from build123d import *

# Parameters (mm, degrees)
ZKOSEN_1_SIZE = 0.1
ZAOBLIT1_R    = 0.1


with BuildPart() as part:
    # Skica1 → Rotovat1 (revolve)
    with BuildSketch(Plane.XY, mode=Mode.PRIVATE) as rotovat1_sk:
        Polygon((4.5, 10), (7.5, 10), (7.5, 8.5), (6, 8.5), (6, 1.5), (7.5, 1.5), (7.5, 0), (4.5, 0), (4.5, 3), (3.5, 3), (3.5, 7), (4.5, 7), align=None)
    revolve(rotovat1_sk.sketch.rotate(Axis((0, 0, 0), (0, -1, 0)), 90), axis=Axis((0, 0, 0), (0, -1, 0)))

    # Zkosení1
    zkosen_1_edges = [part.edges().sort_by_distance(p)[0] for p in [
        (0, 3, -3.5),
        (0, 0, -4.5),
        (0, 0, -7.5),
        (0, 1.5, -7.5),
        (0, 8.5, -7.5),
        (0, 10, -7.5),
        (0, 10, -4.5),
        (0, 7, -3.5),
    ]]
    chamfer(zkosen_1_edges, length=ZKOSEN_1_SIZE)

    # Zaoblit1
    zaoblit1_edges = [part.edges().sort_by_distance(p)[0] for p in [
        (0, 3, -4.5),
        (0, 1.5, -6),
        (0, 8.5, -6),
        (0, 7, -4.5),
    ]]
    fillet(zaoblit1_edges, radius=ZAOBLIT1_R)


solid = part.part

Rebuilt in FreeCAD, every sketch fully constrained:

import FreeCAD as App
import Part
import Sketcher
Q = App.Units.Quantity


def edges_at(feature, points):
    """Names of the edges that pass closest to the given points."""
    edges = feature.Shape.Edges
    near = lambda p: min(range(len(edges)), key=lambda i: edges[i].distToShape(Part.Vertex(*p))[0])
    return sorted({f"Edge{near(p) + 1}" for p in points})

doc = App.newDocument("Part")
body = doc.addObject("PartDesign::Body", "Body")

sketch1 = doc.addObject("Sketcher::SketchObject", "Sketch")
body.addObject(sketch1)
sketch1.AttachmentSupport = (doc.XY_Plane, [""])
sketch1.MapMode = "FlatFace"
sketch1.addGeometry(Part.LineSegment(App.Vector(7.5, 10, 0), App.Vector(4.5, 10, 0)), False)
sketch1.addGeometry(Part.LineSegment(App.Vector(4.5, 10, 0), App.Vector(4.5, 7, 0)), False)
sketch1.addGeometry(Part.LineSegment(App.Vector(4.5, 7, 0), App.Vector(3.5, 7, 0)), False)
sketch1.addGeometry(Part.LineSegment(App.Vector(3.5, 7, 0), App.Vector(3.5, 3, 0)), False)
sketch1.addGeometry(Part.LineSegment(App.Vector(3.5, 3, 0), App.Vector(4.5, 3, 0)), False)
sketch1.addGeometry(Part.LineSegment(App.Vector(4.5, 3, 0), App.Vector(4.5, 0, 0)), False)
sketch1.addGeometry(Part.LineSegment(App.Vector(4.5, 0, 0), App.Vector(7.5, 0, 0)), False)
sketch1.addGeometry(Part.LineSegment(App.Vector(7.5, 0, 0), App.Vector(7.5, 1.5, 0)), False)
sketch1.addGeometry(Part.LineSegment(App.Vector(7.5, 1.5, 0), App.Vector(6, 1.5, 0)), False)
sketch1.addGeometry(Part.LineSegment(App.Vector(6, 1.5, 0), App.Vector(6, 8.5, 0)), False)
sketch1.addGeometry(Part.LineSegment(App.Vector(6, 8.5, 0), App.Vector(7.5, 8.5, 0)), False)
sketch1.addGeometry(Part.LineSegment(App.Vector(7.5, 8.5, 0), App.Vector(7.5, 10, 0)), False)
sketch1.addConstraint(Sketcher.Constraint("Coincident", 0, 2, 1, 1))
sketch1.addConstraint(Sketcher.Constraint("Coincident", 1, 2, 2, 1))
sketch1.addConstraint(Sketcher.Constraint("Coincident", 2, 2, 3, 1))
sketch1.addConstraint(Sketcher.Constraint("Coincident", 3, 2, 4, 1))
sketch1.addConstraint(Sketcher.Constraint("Coincident", 4, 2, 5, 1))
sketch1.addConstraint(Sketcher.Constraint("Coincident", 5, 2, 6, 1))
sketch1.addConstraint(Sketcher.Constraint("Coincident", 6, 2, 7, 1))
sketch1.addConstraint(Sketcher.Constraint("Coincident", 7, 2, 8, 1))
sketch1.addConstraint(Sketcher.Constraint("Coincident", 8, 2, 9, 1))
sketch1.addConstraint(Sketcher.Constraint("Coincident", 9, 2, 10, 1))
sketch1.addConstraint(Sketcher.Constraint("Coincident", 10, 2, 11, 1))
sketch1.addConstraint(Sketcher.Constraint("Coincident", 11, 2, 0, 1))
sketch1.addConstraint(Sketcher.Constraint("Horizontal", 0))
sketch1.addConstraint(Sketcher.Constraint("Vertical", 1))
sketch1.addConstraint(Sketcher.Constraint("Horizontal", 2))
sketch1.addConstraint(Sketcher.Constraint("Vertical", 3))
sketch1.addConstraint(Sketcher.Constraint("Horizontal", 4))
sketch1.addConstraint(Sketcher.Constraint("Vertical", 5))
sketch1.addConstraint(Sketcher.Constraint("Horizontal", 6))
sketch1.addConstraint(Sketcher.Constraint("Vertical", 7))
sketch1.addConstraint(Sketcher.Constraint("Horizontal", 8))
sketch1.addConstraint(Sketcher.Constraint("Vertical", 9))
sketch1.addConstraint(Sketcher.Constraint("Horizontal", 10))
sketch1.addConstraint(Sketcher.Constraint("Vertical", 11))
sketch1.addConstraint(Sketcher.Constraint("PointOnObject", 5, 2, -1))
sketch1.addConstraint(Sketcher.Constraint("Vertical", 1, 2, 4, 2))
sketch1.addConstraint(Sketcher.Constraint("Vertical", 7, 2, 10, 2))
sketch1.addConstraint(Sketcher.Constraint("Equal", 6, 1))
sketch1.addConstraint(Sketcher.Constraint("Equal", 1, 5))
sketch1.addConstraint(Sketcher.Constraint("Equal", 10, 7))
sketch1.addConstraint(Sketcher.Constraint("Equal", 7, 11))
sketch1.addConstraint(Sketcher.Constraint("DistanceX", 0, 2, 0, 1, Q("3 mm")))
sketch1.addConstraint(Sketcher.Constraint("DistanceX", 2, 2, 2, 1, Q("1 mm")))
sketch1.addConstraint(Sketcher.Constraint("DistanceY", 3, 2, 3, 1, Q("4 mm")))
sketch1.addConstraint(Sketcher.Constraint("DistanceY", 9, 1, 9, 2, Q("7 mm")))
sketch1.addConstraint(Sketcher.Constraint("DistanceX", -1, 1, 8, 2, Q("6 mm")))
revolution = doc.addObject("PartDesign::Revolution", "Revolution")
body.addObject(revolution)
revolution.Profile = sketch1
revolution.ReferenceAxis = (sketch1, ["V_Axis"])
revolution.Angle = 360
doc.recompute()

chamfer = doc.addObject("PartDesign::Chamfer", "Chamfer")
body.addObject(chamfer)
chamfer.Base = (revolution, edges_at(revolution, [
    (0, 3, -3.5),
    (0, 0, -4.5),
    (0, 0, -7.5),
    (0, 1.5, -7.5),
    (0, 8.5, -7.5),
    (0, 10, -7.5),
    (0, 10, -4.5),
    (0, 7, -3.5),
]))
chamfer.Size = 0.1
doc.recompute()

fillet = doc.addObject("PartDesign::Fillet", "Fillet")
body.addObject(fillet)
fillet.Base = (chamfer, edges_at(chamfer, [
    (0, 3, -4.5),
    (0, 1.5, -6),
    (0, 8.5, -6),
    (0, 7, -4.5),
]))
fillet.Radius = 0.1

doc.recompute()
